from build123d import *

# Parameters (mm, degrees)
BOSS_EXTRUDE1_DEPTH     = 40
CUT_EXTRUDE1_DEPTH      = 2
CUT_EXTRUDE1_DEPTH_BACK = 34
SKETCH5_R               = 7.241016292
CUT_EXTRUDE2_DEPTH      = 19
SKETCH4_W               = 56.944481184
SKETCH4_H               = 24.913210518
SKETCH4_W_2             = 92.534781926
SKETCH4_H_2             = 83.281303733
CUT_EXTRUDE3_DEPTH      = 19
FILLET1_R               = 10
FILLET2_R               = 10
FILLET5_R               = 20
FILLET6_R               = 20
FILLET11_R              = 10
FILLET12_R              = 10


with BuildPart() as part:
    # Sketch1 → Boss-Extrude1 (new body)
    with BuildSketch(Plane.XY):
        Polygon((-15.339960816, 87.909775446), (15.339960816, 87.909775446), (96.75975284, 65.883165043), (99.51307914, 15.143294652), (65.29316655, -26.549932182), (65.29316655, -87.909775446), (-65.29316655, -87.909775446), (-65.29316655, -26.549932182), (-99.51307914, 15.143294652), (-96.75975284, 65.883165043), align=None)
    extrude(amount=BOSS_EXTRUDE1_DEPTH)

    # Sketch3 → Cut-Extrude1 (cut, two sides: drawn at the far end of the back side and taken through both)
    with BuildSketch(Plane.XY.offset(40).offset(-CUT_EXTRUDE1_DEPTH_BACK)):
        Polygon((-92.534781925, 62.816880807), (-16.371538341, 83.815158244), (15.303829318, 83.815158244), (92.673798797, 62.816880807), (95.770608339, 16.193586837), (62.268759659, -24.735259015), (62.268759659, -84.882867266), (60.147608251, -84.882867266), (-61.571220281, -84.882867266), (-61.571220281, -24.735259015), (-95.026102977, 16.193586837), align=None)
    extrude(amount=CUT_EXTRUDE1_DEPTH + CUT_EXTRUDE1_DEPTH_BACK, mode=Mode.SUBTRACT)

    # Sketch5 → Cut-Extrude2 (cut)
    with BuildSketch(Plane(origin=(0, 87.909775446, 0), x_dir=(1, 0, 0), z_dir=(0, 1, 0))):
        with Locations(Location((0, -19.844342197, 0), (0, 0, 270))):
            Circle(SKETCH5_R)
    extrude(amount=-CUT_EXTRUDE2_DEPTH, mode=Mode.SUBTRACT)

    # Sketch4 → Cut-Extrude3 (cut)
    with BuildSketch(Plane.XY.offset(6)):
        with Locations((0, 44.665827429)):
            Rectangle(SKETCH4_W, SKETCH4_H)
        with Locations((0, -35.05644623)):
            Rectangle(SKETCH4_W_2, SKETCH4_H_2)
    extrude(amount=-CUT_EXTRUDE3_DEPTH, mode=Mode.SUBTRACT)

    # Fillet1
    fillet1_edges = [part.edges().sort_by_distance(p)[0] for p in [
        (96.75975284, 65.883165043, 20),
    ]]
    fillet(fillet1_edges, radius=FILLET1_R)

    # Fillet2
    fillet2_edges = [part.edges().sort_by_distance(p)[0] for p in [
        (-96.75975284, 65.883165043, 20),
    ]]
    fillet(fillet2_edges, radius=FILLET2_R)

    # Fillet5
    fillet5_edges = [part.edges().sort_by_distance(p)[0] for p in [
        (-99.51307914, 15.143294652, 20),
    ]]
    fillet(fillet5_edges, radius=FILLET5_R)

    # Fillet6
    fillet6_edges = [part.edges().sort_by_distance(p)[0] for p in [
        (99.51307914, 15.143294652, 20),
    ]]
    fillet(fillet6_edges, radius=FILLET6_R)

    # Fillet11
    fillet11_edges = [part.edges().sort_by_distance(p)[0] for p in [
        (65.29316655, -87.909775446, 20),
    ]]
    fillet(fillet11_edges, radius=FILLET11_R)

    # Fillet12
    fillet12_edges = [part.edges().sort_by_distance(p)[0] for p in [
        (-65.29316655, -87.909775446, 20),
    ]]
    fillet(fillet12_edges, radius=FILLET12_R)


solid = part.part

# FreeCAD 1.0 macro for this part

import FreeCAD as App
import Part
import Sketcher

V = App.Vector


def edges_at(feature, points):
    """Names of the edges that pass closest to the given points."""
    edges = feature.Shape.Edges
    near = lambda p: min(range(len(edges)), key=lambda i: edges[i].distToShape(Part.Vertex(*p))[0])
    return sorted({f"Edge{near(p) + 1}" for p in points})

doc = App.newDocument("Part")
body = doc.addObject("PartDesign::Body", "Body")

sketch1 = body.newObject("Sketcher::SketchObject", "Sketch")
sketch1.AttachmentSupport = (doc.getObject("XY_Plane"), [""])
sketch1.MapMode = "FlatFace"
sketch1.addGeometry([
    Part.LineSegment(V(15, 88, 0), V(-15, 88, 0)),
    Part.LineSegment(V(-15, 88, 0), V(-97, 66, 0)),
    Part.LineSegment(V(-97, 66, 0), V(-100, 15, 0)),
    Part.LineSegment(V(-100, 15, 0), V(-65, -27, 0)),
    Part.LineSegment(V(-65, -27, 0), V(-65, -88, 0)),
    Part.LineSegment(V(-65, -88, 0), V(65, -88, 0)),
    Part.LineSegment(V(65, -88, 0), V(65, -27, 0)),
    Part.LineSegment(V(65, -27, 0), V(100, 15, 0)),
    Part.LineSegment(V(100, 15, 0), V(97, 66, 0)),
    Part.LineSegment(V(97, 66, 0), V(15, 88, 0)),
], False)
sketch1.addConstraint([
    Sketcher.Constraint("Coincident", 0, 2, 1, 1),
    Sketcher.Constraint("Coincident", 1, 2, 2, 1),
    Sketcher.Constraint("Coincident", 2, 2, 3, 1),
    Sketcher.Constraint("Coincident", 3, 2, 4, 1),
    Sketcher.Constraint("Coincident", 4, 2, 5, 1),
    Sketcher.Constraint("Coincident", 5, 2, 6, 1),
    Sketcher.Constraint("Coincident", 6, 2, 7, 1),
    Sketcher.Constraint("Coincident", 7, 2, 8, 1),
    Sketcher.Constraint("Coincident", 8, 2, 9, 1),
    Sketcher.Constraint("Coincident", 9, 2, 0, 1),
    Sketcher.Constraint("Horizontal", 0),
    Sketcher.Constraint("Vertical", 4),
    Sketcher.Constraint("Horizontal", 5),
    Sketcher.Constraint("Vertical", 6),
    Sketcher.Constraint("Symmetric", 3, 2, 6, 2, -2),
    Sketcher.Constraint("Symmetric", 2, 2, 7, 2, -2),
    Sketcher.Constraint("Symmetric", 1, 2, 8, 2, -2),
    Sketcher.Constraint("Equal", 1, 9),
    Sketcher.Constraint("DistanceX", 0, 2, 0, 1, 30.679922),
    Sketcher.Constraint("Distance", 1, 84.346631),
    Sketcher.Constraint("Distance", 2, 50.814518),
    Sketcher.Constraint("DistanceX", 5, 1, 5, 2, 130.586333),
    Sketcher.Constraint("DistanceY", 4, 2, 4, 1, 61.359843),
    Sketcher.Constraint("DistanceX", 2, 2, -1, 1, 99.513079),
    Sketcher.Constraint("DistanceY", 1, 2, 0, 2, 22.02661),
    Sketcher.Constraint("DistanceY", 4, 2, 2, 2, 103.05307),
    Sketcher.Constraint("DistanceY", -1, 1, 0, 2, 87.909775),
])
pad1 = body.newObject("PartDesign::Pad", "Pad")
pad1.Profile = sketch1
pad1.Length = 40

sketch2 = body.newObject("Sketcher::SketchObject", "Sketch001")
sketch2.AttachmentSupport = (doc.getObject("XY_Plane"), [""])
sketch2.MapMode = "FlatFace"
sketch2.AttachmentOffset = App.Placement(V(0, 0, 40), App.Rotation())
sketch2.addGeometry([
    Part.LineSegment(V(-16, 84, 0), V(-93, 63, 0)),
    Part.LineSegment(V(-93, 63, 0), V(-95, 16, 0)),
    Part.LineSegment(V(-95, 16, 0), V(-62, -25, 0)),
    Part.LineSegment(V(-62, -25, 0), V(-62, -85, 0)),
    Part.LineSegment(V(-62, -85, 0), V(62, -85, 0)),
    Part.LineSegment(V(62, -85, 0), V(62, -25, 0)),
    Part.LineSegment(V(62, -25, 0), V(96, 16, 0)),
    Part.LineSegment(V(96, 16, 0), V(93, 63, 0)),
    Part.LineSegment(V(93, 63, 0), V(15, 84, 0)),
    Part.LineSegment(V(15, 84, 0), V(-16, 84, 0)),
], False)
sketch2.addConstraint([
    Sketcher.Constraint("Coincident", 0, 2, 1, 1),
    Sketcher.Constraint("Coincident", 1, 2, 2, 1),
    Sketcher.Constraint("Coincident", 2, 2, 3, 1),
    Sketcher.Constraint("Coincident", 3, 2, 4, 1),
    Sketcher.Constraint("Coincident", 4, 2, 5, 1),
    Sketcher.Constraint("Coincident", 5, 2, 6, 1),
    Sketcher.Constraint("Coincident", 6, 2, 7, 1),
    Sketcher.Constraint("Coincident", 7, 2, 8, 1),
    Sketcher.Constraint("Coincident", 8, 2, 9, 1),
    Sketcher.Constraint("Coincident", 9, 2, 0, 1),
    Sketcher.Constraint("Vertical", 3),
    Sketcher.Constraint("Horizontal", 4),
    Sketcher.Constraint("Vertical", 5),
    Sketcher.Constraint("Horizontal", 9),
    Sketcher.Constraint("Horizontal", 2, 2, 5, 2),
    Sketcher.Constraint("Horizontal", 1, 2, 6, 2),
    Sketcher.Constraint("Horizontal", 0, 2, 7, 2),
    Sketcher.Constraint("DistanceX", 4, 1, 4, 2, 123.83998),
    Sketcher.Constraint("DistanceY", 3, 2, 3, 1, 60.147608),
    Sketcher.Constraint("DistanceX", -1, 1, 7, 2, 92.673799),
    Sketcher.Constraint("Distance", 1, 46.689809),
    Sketcher.Constraint("Distance", 2, 52.862081),
    Sketcher.Constraint("Distance", 7, 46.726029),
    Sketcher.Constraint("Distance", 8, 80.168821),
    Sketcher.Constraint("DistanceX", 9, 2, 9, 1, 31.675368),
    Sketcher.Constraint("DistanceX", 0, 2, -1, 1, 92.534782),
    Sketcher.Constraint("DistanceY", -1, 1, 0, 2, 62.816881),
    Sketcher.Constraint("DistanceX", 2, 2, -1, 1, 61.57122),
    Sketcher.Constraint("DistanceY", 2, 2, -1, 1, 24.735259),
    Sketcher.Constraint("DistanceX", -1, 1, 8, 2, 15.303829),
])
pocket1 = body.newObject("PartDesign::Pocket", "Pocket")
pocket1.Profile = sketch2
pocket1.Type = "TwoLengths"
pocket1.Length = 2
pocket1.Length2 = 34
pocket1.Reversed = True

sketch3 = body.newObject("Sketcher::SketchObject", "Sketch002")
sketch3.AttachmentSupport = (doc.getObject("XZ_Plane"), [""])
sketch3.MapMode = "FlatFace"
sketch3.AttachmentOffset = App.Placement(V(0, 0, -87.909775), App.Rotation())
sketch3.addGeometry(Part.Circle(V(0, 20, 0), V(0, 0, 1), 7), False)
sketch3.addConstraint([
    Sketcher.Constraint("PointOnObject", 0, 3, -2),
    Sketcher.Constraint("Diameter", 0, 14.482033),
    Sketcher.Constraint("DistanceY", -1, 1, 0, 3, 19.844342),
])
pocket2 = body.newObject("PartDesign::Pocket", "Pocket001")
pocket2.Profile = sketch3
pocket2.Length = 19
pocket2.Reversed = True

sketch4 = body.newObject("Sketcher::SketchObject", "Sketch003")
sketch4.AttachmentSupport = (doc.getObject("XY_Plane"), [""])
sketch4.MapMode = "FlatFace"
sketch4.AttachmentOffset = App.Placement(V(0, 0, 6), App.Rotation())
sketch4.addGeometry([
    Part.LineSegment(V(-28, 57, 0), V(-28, 32, 0)),
    Part.LineSegment(V(-28, 32, 0), V(28, 32, 0)),
    Part.LineSegment(V(28, 32, 0), V(28, 57, 0)),
    Part.LineSegment(V(28, 57, 0), V(-28, 57, 0)),
    Part.LineSegment(V(-46, 7, 0), V(-46, -77, 0)),
    Part.LineSegment(V(-46, -77, 0), V(46, -77, 0)),
    Part.LineSegment(V(46, -77, 0), V(46, 7, 0)),
    Part.LineSegment(V(46, 7, 0), V(-46, 7, 0)),
], False)
sketch4.addConstraint([
    Sketcher.Constraint("Coincident", 0, 2, 1, 1),
    Sketcher.Constraint("Coincident", 1, 2, 2, 1),
    Sketcher.Constraint("Coincident", 2, 2, 3, 1),
    Sketcher.Constraint("Coincident", 3, 2, 0, 1),
    Sketcher.Constraint("Coincident", 4, 2, 5, 1),
    Sketcher.Constraint("Coincident", 5, 2, 6, 1),
    Sketcher.Constraint("Coincident", 6, 2, 7, 1),
    Sketcher.Constraint("Coincident", 7, 2, 4, 1),
    Sketcher.Constraint("Vertical", 0),
    Sketcher.Constraint("Horizontal", 1),
    Sketcher.Constraint("Vertical", 2),
    Sketcher.Constraint("Horizontal", 3),
    Sketcher.Constraint("Vertical", 4),
    Sketcher.Constraint("Horizontal", 5),
    Sketcher.Constraint("Vertical", 6),
    Sketcher.Constraint("Horizontal", 7),
    Sketcher.Constraint("DistanceX", 1, 1, 1, 2, 56.944481),
    Sketcher.Constraint("DistanceX", 5, 1, 5, 2, 92.534782),
    Sketcher.Constraint("DistanceY", 0, 2, 0, 1, 24.913211),
    Sketcher.Constraint("DistanceY", 4, 2, -1, 1, 76.697098),
    Sketcher.Constraint("DistanceY", 4, 2, 4, 1, 83.281304),
    Sketcher.Constraint("DistanceX", 0, 2, -1, 1, 28.472241),
    Sketcher.Constraint("DistanceX", 4, 2, -1, 1, 46.267391),
    Sketcher.Constraint("DistanceY", 4, 2, 0, 2, 108.90632),
])
pocket3 = body.newObject("PartDesign::Pocket", "Pocket002")
pocket3.Profile = sketch4
pocket3.Length = 19
doc.recompute()

fillet = body.newObject("PartDesign::Fillet", "Fillet")
fillet.Base = (pocket3, edges_at(pocket3, [(96.76, 65.883, 20)]))
fillet.Radius = 10
doc.recompute()

fillet2 = body.newObject("PartDesign::Fillet", "Fillet001")
fillet2.Base = (fillet, edges_at(fillet, [(-96.76, 65.883, 20)]))
fillet2.Radius = 10
doc.recompute()

fillet3 = body.newObject("PartDesign::Fillet", "Fillet002")
fillet3.Base = (fillet2, edges_at(fillet2, [(-99.513, 15.143, 20)]))
fillet3.Radius = 20
doc.recompute()

fillet4 = body.newObject("PartDesign::Fillet", "Fillet003")
fillet4.Base = (fillet3, edges_at(fillet3, [(99.513, 15.143, 20)]))
fillet4.Radius = 20
doc.recompute()

fillet5 = body.newObject("PartDesign::Fillet", "Fillet004")
fillet5.Base = (fillet4, edges_at(fillet4, [(65.293, -87.91, 20)]))
fillet5.Radius = 10
doc.recompute()

fillet6 = body.newObject("PartDesign::Fillet", "Fillet005")
fillet6.Base = (fillet5, edges_at(fillet5, [(-65.293, -87.91, 20)]))
fillet6.Radius = 10

doc.recompute()
